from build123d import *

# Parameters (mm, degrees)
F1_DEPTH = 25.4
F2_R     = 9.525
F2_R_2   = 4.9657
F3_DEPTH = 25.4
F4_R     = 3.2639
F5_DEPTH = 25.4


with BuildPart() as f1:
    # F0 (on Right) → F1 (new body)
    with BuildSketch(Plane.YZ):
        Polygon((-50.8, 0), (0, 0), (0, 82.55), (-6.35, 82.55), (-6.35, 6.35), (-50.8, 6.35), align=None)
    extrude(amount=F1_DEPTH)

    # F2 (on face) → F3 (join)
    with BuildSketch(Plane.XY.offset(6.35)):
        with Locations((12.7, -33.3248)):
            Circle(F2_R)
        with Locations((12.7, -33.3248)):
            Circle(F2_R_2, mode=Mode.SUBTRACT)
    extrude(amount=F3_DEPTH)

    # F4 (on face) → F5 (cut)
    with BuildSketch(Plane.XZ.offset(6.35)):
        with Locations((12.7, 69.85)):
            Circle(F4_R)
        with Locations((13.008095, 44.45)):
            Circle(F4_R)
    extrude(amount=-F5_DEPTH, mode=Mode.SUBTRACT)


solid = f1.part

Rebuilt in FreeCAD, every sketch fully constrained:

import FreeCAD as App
import Part
import Sketcher
from FreeCAD import Vector
Q = App.Units.Quantity

doc = App.newDocument("Part")
body = doc.addObject("PartDesign::Body", "Body")

sketch1 = doc.addObject("Sketcher::SketchObject", "Sketch")
body.addObject(sketch1)
sketch1.AttachmentSupport = (doc.YZ_Plane, [""])
sketch1.MapMode = "FlatFace"
sketch1.addGeometry(Part.LineSegment(Vector(-51, 0, 0), Vector(0, 0, 0)), False)
sketch1.addGeometry(Part.LineSegment(Vector(0, 0, 0), Vector(0, 83, 0)), False)
sketch1.addGeometry(Part.LineSegment(Vector(0, 83, 0), Vector(-6, 83, 0)), False)
sketch1.addGeometry(Part.LineSegment(Vector(-6, 83, 0), Vector(-6, 6, 0)), False)
sketch1.addGeometry(Part.LineSegment(Vector(-6, 6, 0), Vector(-51, 6, 0)), False)
sketch1.addGeometry(Part.LineSegment(Vector(-51, 6, 0), Vector(-51, 0, 0)), False)
sketch1.addConstraint(Sketcher.Constraint("Coincident", 0, 2, 1, 1))
sketch1.addConstraint(Sketcher.Constraint("Coincident", 1, 2, 2, 1))
sketch1.addConstraint(Sketcher.Constraint("Coincident", 2, 2, 3, 1))
sketch1.addConstraint(Sketcher.Constraint("Coincident", 3, 2, 4, 1))
sketch1.addConstraint(Sketcher.Constraint("Coincident", 4, 2, 5, 1))
sketch1.addConstraint(Sketcher.Constraint("Coincident", 5, 2, 0, 1))
sketch1.addConstraint(Sketcher.Constraint("Horizontal", 0))
sketch1.addConstraint(Sketcher.Constraint("Vertical", 1))
sketch1.addConstraint(Sketcher.Constraint("Horizontal", 2))
sketch1.addConstraint(Sketcher.Constraint("Vertical", 3))
sketch1.addConstraint(Sketcher.Constraint("Horizontal", 4))
sketch1.addConstraint(Sketcher.Constraint("Vertical", 5))
sketch1.addConstraint(Sketcher.Constraint("Coincident", 0, 2, -1, 1))
sketch1.addConstraint(Sketcher.Constraint("Equal", 2, 5))
sketch1.addConstraint(Sketcher.Constraint("DistanceX", 0, 1, 0, 2, Q("2 in")))
sketch1.addConstraint(Sketcher.Constraint("DistanceY", 3, 2, 3, 1, Q("3 in")))
sketch1.addConstraint(Sketcher.Constraint("DistanceX", 2, 2, 2, 1, Q("0.25 in")))
pad1 = doc.addObject("PartDesign::Pad", "Pad")
body.addObject(pad1)
pad1.Profile = sketch1
pad1.Length = Q("1 in")

sketch2 = doc.addObject("Sketcher::SketchObject", "Sketch001")
body.addObject(sketch2)
sketch2.AttachmentSupport = (doc.XY_Plane, [""])
sketch2.MapMode = "FlatFace"
sketch2.AttachmentOffset = App.Placement(Vector(0, 0, 0.25 * 25.4), App.Rotation())
sketch2.addGeometry(Part.Circle(Vector(12.7, -33.3, 0), Vector(0, 0, 1), 9.5), False)
sketch2.addGeometry(Part.Circle(Vector(12.7, -33.3, 0), Vector(0, 0, 1), 5), False)
sketch2.addConstraint(Sketcher.Constraint("Coincident", 1, 3, 0, 3))
sketch2.addConstraint(Sketcher.Constraint("Diameter", 0, Q("0.75 in")))
sketch2.addConstraint(Sketcher.Constraint("Diameter", 1, Q("0.391 in")))
sketch2.addConstraint(Sketcher.Constraint("DistanceX", -1, 1, 0, 3, Q("0.5 in")))
sketch2.addConstraint(Sketcher.Constraint("DistanceY", 0, 3, -1, 1, Q("1.312 in")))
pad2 = doc.addObject("PartDesign::Pad", "Pad001")
body.addObject(pad2)
pad2.Profile = sketch2
pad2.Length = Q("1 in")

sketch3 = doc.addObject("Sketcher::SketchObject", "Sketch002")
body.addObject(sketch3)
sketch3.AttachmentSupport = (doc.XZ_Plane, [""])
sketch3.MapMode = "FlatFace"
sketch3.AttachmentOffset = App.Placement(Vector(0, 0, 0.25 * 25.4), App.Rotation())
sketch3.addGeometry(Part.Circle(Vector(12.7, 69.8, 0), Vector(0, 0, 1), 3.3), False)
sketch3.addGeometry(Part.Circle(Vector(13, 44.5, 0), Vector(0, 0, 1), 3.3), False)
sketch3.addConstraint(Sketcher.Constraint("Equal", 0, 1))
sketch3.addConstraint(Sketcher.Constraint("Diameter", 0, Q("0.257 in")))
sketch3.addConstraint(Sketcher.Constraint("DistanceY", 1, 3, 0, 3, Q("1 in")))
sketch3.addConstraint(Sketcher.Constraint("DistanceX", -1, 1, 0, 3, Q("0.5 in")))
sketch3.addConstraint(Sketcher.Constraint("DistanceY", -1, 1, 0, 3, Q("2.75 in")))
sketch3.addConstraint(Sketcher.Constraint("DistanceX", -1, 1, 1, 3, 13.008095))
pocket1 = doc.addObject("PartDesign::Pocket", "Pocket")
body.addObject(pocket1)
pocket1.Profile = sketch3
pocket1.Length = Q("1 in")

doc.recompute()
